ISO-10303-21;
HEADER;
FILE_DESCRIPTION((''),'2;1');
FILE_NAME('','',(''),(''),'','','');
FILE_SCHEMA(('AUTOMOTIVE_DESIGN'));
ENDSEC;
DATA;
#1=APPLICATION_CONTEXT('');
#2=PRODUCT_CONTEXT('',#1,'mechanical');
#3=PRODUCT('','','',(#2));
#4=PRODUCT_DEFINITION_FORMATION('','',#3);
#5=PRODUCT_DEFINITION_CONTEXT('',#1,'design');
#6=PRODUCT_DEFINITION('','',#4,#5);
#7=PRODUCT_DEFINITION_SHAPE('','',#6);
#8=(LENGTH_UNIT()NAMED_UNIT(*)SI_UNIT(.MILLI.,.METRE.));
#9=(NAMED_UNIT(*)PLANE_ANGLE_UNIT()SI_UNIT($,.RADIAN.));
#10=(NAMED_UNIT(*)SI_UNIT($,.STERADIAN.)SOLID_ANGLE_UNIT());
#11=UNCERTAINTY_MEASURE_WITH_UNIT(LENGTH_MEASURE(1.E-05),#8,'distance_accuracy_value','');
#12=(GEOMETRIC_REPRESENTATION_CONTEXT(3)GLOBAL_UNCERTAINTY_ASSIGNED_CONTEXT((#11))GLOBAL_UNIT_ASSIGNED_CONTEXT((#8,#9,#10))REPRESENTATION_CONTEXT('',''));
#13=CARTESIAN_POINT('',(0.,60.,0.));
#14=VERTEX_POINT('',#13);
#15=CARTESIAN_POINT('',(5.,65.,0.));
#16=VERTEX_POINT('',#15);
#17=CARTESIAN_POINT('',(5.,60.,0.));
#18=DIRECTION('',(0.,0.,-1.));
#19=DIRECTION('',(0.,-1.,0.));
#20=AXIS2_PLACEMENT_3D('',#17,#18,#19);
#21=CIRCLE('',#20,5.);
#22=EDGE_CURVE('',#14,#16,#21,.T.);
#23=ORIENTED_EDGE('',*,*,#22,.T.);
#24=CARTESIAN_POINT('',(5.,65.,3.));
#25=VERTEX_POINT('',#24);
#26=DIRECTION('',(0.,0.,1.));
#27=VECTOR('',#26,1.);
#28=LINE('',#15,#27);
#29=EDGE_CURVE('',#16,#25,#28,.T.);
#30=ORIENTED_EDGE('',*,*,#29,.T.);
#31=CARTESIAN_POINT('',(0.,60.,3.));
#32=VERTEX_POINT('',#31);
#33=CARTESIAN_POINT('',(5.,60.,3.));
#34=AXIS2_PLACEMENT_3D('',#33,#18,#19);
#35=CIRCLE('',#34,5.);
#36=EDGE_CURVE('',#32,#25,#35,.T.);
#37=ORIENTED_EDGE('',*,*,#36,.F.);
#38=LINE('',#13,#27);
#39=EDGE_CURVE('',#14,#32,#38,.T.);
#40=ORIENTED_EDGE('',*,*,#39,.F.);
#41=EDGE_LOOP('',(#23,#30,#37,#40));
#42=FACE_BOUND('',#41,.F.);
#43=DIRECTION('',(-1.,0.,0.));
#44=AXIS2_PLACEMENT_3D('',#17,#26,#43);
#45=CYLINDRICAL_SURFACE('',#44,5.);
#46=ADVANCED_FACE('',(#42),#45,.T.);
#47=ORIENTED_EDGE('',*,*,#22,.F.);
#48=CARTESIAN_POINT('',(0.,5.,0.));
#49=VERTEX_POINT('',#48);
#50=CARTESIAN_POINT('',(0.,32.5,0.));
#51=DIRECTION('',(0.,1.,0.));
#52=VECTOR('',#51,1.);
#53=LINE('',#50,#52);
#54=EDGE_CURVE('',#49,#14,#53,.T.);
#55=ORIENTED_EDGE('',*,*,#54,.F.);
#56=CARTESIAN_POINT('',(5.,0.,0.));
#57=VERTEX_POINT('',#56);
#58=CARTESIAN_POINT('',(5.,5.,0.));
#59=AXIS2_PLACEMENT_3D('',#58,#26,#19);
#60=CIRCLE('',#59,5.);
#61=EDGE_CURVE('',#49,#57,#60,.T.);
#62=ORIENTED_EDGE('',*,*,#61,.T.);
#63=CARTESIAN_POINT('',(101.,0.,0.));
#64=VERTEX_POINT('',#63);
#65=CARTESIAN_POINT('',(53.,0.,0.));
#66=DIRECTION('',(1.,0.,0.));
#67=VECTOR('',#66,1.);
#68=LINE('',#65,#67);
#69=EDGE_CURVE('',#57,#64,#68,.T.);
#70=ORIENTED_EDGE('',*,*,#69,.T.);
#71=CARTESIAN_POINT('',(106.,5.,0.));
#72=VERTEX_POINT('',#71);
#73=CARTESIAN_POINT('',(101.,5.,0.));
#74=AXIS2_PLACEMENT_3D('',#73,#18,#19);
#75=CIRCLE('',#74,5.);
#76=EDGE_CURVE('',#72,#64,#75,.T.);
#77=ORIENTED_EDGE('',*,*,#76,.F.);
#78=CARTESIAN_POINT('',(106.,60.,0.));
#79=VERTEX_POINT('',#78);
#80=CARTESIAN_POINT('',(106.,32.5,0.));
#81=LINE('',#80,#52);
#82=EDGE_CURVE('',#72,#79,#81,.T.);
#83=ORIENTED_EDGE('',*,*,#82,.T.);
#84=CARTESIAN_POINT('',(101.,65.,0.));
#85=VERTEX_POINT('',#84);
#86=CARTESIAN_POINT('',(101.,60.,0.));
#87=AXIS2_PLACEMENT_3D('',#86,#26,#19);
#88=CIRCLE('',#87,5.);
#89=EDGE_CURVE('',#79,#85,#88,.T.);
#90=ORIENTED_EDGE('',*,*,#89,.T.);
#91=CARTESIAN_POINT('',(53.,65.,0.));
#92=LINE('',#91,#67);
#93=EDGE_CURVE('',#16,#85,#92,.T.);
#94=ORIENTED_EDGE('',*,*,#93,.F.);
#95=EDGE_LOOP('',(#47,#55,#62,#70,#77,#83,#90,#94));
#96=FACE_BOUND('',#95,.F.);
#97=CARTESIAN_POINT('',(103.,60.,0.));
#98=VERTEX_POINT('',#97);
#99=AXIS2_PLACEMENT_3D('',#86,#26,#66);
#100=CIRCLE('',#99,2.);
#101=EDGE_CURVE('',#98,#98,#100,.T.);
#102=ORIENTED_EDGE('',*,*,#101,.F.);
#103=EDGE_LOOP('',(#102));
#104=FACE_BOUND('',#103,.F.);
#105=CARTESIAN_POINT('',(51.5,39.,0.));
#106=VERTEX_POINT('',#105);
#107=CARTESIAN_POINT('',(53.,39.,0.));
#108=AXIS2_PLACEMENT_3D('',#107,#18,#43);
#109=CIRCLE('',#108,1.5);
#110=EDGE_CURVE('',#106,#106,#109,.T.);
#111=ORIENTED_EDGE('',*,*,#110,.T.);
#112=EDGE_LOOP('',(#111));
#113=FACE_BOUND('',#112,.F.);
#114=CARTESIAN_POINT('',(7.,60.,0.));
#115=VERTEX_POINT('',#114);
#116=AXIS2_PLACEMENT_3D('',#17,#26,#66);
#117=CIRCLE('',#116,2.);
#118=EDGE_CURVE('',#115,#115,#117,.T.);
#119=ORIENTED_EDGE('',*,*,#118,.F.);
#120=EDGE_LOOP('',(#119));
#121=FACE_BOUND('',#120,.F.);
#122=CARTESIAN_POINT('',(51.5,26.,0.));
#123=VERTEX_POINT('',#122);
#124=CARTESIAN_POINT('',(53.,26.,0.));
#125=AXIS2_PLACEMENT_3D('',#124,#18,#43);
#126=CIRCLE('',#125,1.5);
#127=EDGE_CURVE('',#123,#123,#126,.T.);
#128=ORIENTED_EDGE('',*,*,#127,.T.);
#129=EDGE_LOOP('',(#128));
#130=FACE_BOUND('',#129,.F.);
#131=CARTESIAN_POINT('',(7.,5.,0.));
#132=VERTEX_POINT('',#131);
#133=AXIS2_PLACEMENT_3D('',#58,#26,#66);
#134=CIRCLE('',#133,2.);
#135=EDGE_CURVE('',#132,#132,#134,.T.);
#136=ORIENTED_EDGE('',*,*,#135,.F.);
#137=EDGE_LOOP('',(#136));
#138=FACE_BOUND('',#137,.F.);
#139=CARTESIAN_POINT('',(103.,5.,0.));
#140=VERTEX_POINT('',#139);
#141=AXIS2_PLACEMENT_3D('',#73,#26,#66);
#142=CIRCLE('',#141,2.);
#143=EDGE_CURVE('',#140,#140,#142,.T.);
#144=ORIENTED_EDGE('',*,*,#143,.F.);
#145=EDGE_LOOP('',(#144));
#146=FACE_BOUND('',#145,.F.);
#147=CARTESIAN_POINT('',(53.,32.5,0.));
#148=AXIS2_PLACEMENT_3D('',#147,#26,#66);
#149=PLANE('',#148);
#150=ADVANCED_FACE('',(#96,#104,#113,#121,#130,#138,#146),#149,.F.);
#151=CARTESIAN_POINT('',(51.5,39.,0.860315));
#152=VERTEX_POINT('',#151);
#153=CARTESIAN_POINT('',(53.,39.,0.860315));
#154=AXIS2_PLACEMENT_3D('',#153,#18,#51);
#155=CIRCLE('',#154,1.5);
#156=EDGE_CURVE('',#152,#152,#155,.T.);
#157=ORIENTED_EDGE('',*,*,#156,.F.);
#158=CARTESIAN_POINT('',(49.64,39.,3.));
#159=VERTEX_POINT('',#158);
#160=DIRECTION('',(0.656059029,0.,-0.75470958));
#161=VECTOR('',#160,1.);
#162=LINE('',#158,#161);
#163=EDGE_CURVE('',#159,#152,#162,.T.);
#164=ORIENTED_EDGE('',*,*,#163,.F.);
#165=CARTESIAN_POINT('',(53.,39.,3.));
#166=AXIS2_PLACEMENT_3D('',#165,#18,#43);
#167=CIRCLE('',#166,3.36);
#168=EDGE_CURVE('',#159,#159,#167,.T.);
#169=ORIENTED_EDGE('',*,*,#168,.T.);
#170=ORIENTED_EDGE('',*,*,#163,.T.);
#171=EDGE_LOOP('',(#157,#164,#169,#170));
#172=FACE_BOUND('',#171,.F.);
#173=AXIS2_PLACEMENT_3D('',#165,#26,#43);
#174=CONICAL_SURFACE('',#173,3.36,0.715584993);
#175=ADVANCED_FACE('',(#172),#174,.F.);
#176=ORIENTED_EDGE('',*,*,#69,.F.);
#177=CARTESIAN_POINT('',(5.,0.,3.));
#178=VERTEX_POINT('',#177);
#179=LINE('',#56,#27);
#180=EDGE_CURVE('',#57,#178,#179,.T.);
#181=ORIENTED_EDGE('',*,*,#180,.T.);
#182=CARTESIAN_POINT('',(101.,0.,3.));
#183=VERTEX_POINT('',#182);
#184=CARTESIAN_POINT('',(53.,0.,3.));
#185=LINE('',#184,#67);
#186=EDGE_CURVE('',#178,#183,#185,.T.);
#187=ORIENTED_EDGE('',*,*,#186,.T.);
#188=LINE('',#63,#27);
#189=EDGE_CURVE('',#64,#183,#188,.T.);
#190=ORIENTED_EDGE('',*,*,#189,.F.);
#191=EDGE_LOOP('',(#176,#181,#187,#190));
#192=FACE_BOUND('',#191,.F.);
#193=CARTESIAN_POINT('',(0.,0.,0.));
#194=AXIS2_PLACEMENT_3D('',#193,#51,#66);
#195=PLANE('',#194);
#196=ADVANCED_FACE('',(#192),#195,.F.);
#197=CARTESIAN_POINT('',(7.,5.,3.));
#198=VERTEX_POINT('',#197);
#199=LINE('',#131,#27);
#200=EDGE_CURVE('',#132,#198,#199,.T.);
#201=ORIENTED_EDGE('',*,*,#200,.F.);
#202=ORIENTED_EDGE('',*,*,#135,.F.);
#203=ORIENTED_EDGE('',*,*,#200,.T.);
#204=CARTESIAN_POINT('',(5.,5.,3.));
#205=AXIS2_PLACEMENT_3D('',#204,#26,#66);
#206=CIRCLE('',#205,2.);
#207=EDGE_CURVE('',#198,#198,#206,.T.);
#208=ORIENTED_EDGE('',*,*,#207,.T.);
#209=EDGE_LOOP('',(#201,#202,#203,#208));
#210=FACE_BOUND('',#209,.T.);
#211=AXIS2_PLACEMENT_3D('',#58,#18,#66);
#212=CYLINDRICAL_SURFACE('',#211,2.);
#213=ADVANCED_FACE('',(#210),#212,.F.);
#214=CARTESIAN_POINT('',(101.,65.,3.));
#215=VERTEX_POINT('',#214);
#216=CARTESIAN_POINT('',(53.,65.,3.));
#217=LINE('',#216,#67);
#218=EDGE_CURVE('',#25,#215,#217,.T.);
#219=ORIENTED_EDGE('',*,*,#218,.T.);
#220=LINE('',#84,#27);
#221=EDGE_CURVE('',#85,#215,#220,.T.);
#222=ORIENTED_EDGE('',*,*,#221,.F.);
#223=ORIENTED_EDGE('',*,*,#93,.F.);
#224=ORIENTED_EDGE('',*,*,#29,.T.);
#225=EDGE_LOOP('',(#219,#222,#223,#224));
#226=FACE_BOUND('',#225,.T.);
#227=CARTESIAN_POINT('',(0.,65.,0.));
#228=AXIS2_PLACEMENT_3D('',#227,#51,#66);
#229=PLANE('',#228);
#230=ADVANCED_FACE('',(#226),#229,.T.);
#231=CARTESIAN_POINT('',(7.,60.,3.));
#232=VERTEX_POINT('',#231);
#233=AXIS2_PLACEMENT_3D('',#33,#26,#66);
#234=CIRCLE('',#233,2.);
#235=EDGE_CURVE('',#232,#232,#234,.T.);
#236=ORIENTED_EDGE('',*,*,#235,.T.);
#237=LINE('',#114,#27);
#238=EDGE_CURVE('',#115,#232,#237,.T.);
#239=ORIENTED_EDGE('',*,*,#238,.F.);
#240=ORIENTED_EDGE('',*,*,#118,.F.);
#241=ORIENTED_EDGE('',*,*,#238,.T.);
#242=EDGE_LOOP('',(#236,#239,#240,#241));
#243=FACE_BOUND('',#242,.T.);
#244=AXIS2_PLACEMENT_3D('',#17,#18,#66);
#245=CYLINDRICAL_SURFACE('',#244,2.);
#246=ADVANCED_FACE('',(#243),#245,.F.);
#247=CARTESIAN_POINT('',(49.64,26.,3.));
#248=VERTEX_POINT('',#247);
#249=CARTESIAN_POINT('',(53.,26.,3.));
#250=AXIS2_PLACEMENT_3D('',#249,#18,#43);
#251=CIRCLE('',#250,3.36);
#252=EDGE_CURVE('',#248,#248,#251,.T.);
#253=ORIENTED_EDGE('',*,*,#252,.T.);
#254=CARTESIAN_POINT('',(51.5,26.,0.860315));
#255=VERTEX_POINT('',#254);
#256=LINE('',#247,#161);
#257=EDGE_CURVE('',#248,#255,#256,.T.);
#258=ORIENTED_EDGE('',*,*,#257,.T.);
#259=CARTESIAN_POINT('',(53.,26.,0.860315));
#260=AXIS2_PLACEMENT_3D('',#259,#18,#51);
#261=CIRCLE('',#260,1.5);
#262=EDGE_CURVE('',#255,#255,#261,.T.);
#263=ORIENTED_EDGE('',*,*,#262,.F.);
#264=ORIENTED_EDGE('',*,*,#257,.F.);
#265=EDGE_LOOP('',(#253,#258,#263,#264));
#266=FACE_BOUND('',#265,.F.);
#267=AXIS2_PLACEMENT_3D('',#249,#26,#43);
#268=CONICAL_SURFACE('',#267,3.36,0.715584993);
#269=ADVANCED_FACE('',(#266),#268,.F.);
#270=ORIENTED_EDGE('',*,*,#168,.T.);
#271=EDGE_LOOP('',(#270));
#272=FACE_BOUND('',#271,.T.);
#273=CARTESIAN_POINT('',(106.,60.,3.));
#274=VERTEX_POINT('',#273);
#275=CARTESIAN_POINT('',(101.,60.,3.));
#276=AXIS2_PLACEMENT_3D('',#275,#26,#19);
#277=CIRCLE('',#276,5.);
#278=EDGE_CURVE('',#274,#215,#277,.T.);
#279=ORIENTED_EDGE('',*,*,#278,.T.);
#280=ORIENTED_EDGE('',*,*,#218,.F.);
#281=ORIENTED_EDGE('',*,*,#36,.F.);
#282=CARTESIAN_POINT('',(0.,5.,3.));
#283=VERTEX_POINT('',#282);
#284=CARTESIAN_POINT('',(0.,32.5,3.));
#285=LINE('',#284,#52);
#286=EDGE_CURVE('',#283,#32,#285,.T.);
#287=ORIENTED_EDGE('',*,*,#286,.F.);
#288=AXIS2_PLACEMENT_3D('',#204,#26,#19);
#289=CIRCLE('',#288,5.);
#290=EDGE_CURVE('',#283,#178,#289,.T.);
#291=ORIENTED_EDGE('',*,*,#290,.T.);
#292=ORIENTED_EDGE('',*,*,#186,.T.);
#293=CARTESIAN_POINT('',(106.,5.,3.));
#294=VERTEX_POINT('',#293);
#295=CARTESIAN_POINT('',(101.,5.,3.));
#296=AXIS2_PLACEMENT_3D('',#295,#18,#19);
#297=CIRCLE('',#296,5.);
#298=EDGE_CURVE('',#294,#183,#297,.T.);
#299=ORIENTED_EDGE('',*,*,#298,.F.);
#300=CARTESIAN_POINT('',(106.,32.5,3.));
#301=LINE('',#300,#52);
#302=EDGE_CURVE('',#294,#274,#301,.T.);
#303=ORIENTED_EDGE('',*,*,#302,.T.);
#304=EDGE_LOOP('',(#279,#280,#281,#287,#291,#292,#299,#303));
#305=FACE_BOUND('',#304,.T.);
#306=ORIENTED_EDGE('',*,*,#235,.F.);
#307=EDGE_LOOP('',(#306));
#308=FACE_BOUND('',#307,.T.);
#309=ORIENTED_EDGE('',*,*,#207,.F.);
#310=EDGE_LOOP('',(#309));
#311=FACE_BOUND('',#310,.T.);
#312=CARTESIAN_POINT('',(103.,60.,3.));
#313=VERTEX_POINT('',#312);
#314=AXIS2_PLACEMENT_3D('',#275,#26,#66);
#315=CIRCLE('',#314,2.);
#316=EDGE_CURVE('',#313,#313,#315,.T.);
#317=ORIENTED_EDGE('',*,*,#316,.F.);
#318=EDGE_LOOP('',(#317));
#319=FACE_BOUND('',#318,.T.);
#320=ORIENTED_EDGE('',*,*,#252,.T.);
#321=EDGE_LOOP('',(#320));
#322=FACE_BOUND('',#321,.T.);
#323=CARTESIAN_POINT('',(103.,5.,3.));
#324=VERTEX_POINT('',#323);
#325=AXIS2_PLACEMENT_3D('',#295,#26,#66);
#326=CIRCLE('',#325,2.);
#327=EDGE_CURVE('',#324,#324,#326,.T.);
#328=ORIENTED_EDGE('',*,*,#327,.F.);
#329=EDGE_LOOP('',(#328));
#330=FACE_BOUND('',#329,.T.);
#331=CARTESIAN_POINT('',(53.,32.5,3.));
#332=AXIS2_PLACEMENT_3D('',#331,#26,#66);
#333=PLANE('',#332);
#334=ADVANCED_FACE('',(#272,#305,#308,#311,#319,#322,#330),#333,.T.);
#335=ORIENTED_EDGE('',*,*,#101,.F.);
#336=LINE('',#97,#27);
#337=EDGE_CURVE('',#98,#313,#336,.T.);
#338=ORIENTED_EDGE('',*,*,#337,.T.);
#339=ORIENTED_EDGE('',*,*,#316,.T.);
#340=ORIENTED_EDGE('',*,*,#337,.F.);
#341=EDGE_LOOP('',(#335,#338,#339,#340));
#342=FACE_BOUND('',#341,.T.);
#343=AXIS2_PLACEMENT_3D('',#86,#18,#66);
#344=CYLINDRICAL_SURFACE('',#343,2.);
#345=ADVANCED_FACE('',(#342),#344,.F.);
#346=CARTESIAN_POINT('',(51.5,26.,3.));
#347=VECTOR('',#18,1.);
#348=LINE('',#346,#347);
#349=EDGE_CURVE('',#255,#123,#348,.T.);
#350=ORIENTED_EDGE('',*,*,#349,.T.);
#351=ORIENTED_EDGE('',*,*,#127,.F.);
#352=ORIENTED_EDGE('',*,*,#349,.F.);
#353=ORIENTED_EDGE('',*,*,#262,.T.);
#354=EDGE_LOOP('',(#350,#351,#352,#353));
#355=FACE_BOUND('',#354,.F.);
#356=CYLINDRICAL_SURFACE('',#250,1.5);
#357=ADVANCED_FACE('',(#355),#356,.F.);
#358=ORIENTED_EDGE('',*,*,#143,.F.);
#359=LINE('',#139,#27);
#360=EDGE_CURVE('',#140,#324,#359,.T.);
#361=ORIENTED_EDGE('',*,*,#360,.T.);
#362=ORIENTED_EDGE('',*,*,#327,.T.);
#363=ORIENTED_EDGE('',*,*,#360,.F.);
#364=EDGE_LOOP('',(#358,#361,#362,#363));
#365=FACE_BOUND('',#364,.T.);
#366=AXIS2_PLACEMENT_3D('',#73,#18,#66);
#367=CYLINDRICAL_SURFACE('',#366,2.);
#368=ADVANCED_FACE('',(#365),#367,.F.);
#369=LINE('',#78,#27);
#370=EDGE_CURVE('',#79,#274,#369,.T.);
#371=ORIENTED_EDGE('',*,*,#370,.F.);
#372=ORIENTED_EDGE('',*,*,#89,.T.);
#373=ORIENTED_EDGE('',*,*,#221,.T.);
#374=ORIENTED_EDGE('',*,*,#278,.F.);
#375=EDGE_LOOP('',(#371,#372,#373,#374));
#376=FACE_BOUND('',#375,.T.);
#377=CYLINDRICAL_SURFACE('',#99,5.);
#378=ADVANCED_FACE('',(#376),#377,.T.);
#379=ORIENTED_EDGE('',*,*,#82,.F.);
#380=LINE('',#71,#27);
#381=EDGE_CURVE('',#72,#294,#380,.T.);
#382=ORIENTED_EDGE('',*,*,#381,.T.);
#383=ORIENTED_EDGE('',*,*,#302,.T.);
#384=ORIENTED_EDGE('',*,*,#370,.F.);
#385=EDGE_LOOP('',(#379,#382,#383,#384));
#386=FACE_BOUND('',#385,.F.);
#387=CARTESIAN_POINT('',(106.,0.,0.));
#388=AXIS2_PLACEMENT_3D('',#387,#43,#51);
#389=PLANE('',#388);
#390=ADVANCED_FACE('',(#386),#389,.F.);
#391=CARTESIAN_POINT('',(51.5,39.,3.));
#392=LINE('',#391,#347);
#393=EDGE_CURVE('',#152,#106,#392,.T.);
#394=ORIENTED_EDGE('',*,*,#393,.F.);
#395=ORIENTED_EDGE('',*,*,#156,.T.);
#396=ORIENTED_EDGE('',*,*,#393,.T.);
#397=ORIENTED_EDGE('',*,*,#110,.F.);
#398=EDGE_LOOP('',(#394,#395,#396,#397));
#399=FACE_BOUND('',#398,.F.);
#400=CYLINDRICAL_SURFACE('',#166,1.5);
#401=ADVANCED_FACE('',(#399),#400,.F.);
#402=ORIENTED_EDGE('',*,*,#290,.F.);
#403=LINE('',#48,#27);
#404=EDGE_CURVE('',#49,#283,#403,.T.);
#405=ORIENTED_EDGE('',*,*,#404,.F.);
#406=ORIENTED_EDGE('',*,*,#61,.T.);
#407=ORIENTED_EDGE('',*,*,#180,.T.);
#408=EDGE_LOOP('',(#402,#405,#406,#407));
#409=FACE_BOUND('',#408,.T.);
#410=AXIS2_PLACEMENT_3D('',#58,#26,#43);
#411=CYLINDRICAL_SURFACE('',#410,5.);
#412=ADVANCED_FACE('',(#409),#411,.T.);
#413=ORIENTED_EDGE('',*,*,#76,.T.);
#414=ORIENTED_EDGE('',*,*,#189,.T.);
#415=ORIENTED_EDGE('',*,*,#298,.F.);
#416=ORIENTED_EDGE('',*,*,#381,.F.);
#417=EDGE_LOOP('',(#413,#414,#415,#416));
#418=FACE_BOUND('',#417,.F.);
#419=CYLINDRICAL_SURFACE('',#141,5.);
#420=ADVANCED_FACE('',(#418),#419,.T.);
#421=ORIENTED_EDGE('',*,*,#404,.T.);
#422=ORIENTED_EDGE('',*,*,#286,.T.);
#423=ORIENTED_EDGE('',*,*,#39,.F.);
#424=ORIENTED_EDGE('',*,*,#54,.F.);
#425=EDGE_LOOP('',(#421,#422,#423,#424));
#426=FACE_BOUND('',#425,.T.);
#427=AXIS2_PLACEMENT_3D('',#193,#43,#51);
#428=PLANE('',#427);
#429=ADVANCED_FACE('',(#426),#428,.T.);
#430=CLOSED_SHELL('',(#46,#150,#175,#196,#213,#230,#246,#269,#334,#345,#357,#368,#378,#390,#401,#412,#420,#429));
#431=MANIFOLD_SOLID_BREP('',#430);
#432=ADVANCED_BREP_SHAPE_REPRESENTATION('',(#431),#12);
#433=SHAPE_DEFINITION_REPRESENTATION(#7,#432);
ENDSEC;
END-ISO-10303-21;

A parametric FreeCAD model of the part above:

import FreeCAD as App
import Part
import Sketcher

V = App.Vector


def edges_at(feature, points):
    """Names of the edges that pass closest to the given points."""
    edges = feature.Shape.Edges
    near = lambda p: min(range(len(edges)), key=lambda i: edges[i].distToShape(Part.Vertex(*p))[0])
    return sorted({f"Edge{near(p) + 1}" for p in points})


def add_polygon(sketch, points):
    """Adds a closed chain of lines whose ends are joined by coincident constraints."""
    first, n = sketch.GeometryCount, len(points)
    for a, b in zip(points, points[1:] + points[:1]):
        sketch.addGeometry(Part.LineSegment(App.Vector(*a, 0), App.Vector(*b, 0)), False)
    for i in range(n):
        sketch.addConstraint(Sketcher.Constraint("Coincident", first + i, 2, first + (i + 1) % n, 1))

doc = App.newDocument("Part")
params = doc.addObject("Spreadsheet::Sheet", "Params")
for row, (alias, value) in enumerate([
    ("sketch1_diameter", "4 mm"),
    ("sketch1_width", "106 mm"),
    ("sketch1_height", "65 mm"),
    ("pad1_length", "3 mm"),
    ("sketch2_diameter", "3 mm"),
    ("hole_diameter", "3 mm"),
    ("hole_csink_diameter", "6.72 mm"),
    ("fillet_radius", "5 mm"),
], start=1):
    params.set(f"A{row}", alias)
    params.set(f"B{row}", "=" + value)
    params.setAlias(f"B{row}", alias)

body = doc.addObject("PartDesign::Body", "Body")

sketch1 = body.newObject("Sketcher::SketchObject", "Sketch")
sketch1.AttachmentSupport = (doc.getObject("XY_Plane"), [""])
sketch1.MapMode = "FlatFace"
add_polygon(sketch1, [(0, 65), (0, 0), (106, 0), (106, 65)])
sketch1.addGeometry(Part.Circle(V(5, 5, 0), V(0, 0, 1), 2), False)
sketch1.addGeometry(Part.Circle(V(101, 5, 0), V(0, 0, 1), 2), False)
sketch1.addGeometry(Part.Circle(V(5, 60, 0), V(0, 0, 1), 2), False)
sketch1.addGeometry(Part.Circle(V(101, 60, 0), V(0, 0, 1), 2), False)
sketch1.addConstraint(Sketcher.Constraint("Vertical", 0))
sketch1.addConstraint(Sketcher.Constraint("Horizontal", 1))
sketch1.addConstraint(Sketcher.Constraint("Vertical", 2))
sketch1.addConstraint(Sketcher.Constraint("Horizontal", 3))
sketch1.addConstraint(Sketcher.Constraint("Coincident", 0, 2, -1, 1))
sketch1.addConstraint(Sketcher.Constraint("Equal", 4, 5))
sketch1.addConstraint(Sketcher.Constraint("Equal", 5, 6))
sketch1.addConstraint(Sketcher.Constraint("Equal", 6, 7))
sketch1.addConstraint(Sketcher.Constraint("Horizontal", 4, 3, 5, 3))
sketch1.addConstraint(Sketcher.Constraint("Horizontal", 6, 3, 7, 3))
sketch1.addConstraint(Sketcher.Constraint("Vertical", 4, 3, 6, 3))
sketch1.addConstraint(Sketcher.Constraint("Vertical", 5, 3, 7, 3))
sketch1.addConstraint(Sketcher.Constraint("Diameter", 4, 4.0))
sketch1.addConstraint(Sketcher.Constraint("DistanceX", 1, 1, 1, 2, 106.0))
sketch1.addConstraint(Sketcher.Constraint("DistanceY", 0, 2, 0, 1, 65.0))
sketch1.addConstraint(Sketcher.Constraint("DistanceX", -1, 1, 4, 3, 5.0))
sketch1.addConstraint(Sketcher.Constraint("DistanceY", -1, 1, 4, 3, 5.0))
sketch1.addConstraint(Sketcher.Constraint("DistanceX", -1, 1, 5, 3, 101.0))
sketch1.addConstraint(Sketcher.Constraint("DistanceY", -1, 1, 6, 3, 60.0))
sketch1.setExpression("Constraints[16]", "Params.sketch1_diameter")
sketch1.setExpression("Constraints[17]", "Params.sketch1_width")
sketch1.setExpression("Constraints[18]", "Params.sketch1_height")
pad1 = body.newObject("PartDesign::Pad", "Pad")
pad1.Profile = sketch1
pad1.setExpression("Length", "Params.pad1_length")

sketch2 = body.newObject("Sketcher::SketchObject", "Sketch001")
sketch2.AttachmentSupport = (doc.getObject("XY_Plane"), [""])
sketch2.MapMode = "FlatFace"
sketch2.AttachmentOffset = App.Placement(V(0, 0, 3), App.Rotation())
sketch2.addGeometry(Part.Circle(V(53, 39, 0), V(0, 0, 1), 1.5), False)
sketch2.addGeometry(Part.Circle(V(53, 26, 0), V(0, 0, 1), 1.5), False)
sketch2.addConstraint(Sketcher.Constraint("Equal", 0, 1))
sketch2.addConstraint(Sketcher.Constraint("Vertical", 0, 3, 1, 3))
sketch2.addConstraint(Sketcher.Constraint("Diameter", 0, 3.0))
sketch2.addConstraint(Sketcher.Constraint("DistanceX", -1, 1, 0, 3, 53.0))
sketch2.addConstraint(Sketcher.Constraint("DistanceY", -1, 1, 0, 3, 39.0))
sketch2.addConstraint(Sketcher.Constraint("DistanceY", -1, 1, 1, 3, 26.0))
sketch2.setExpression("Constraints[2]", "Params.sketch2_diameter")
doc.recompute()
hole = body.newObject("PartDesign::Hole", "Hole")
hole.Profile = sketch2
hole.ThreadType = "None"
hole.setExpression("Diameter", "Params.hole_diameter")
hole.DepthType = "ThroughAll"
hole.HoleCutType = "Countersink"
hole.setExpression("HoleCutDiameter", "Params.hole_csink_diameter")
hole.HoleCutCountersinkAngle = 82
doc.recompute()

fillet = body.newObject("PartDesign::Fillet", "Fillet")
fillet.Base = (hole, edges_at(hole, [
    (106, 0, 1.5),
    (0, 0, 1.5),
    (0, 65, 1.5),
    (106, 65, 1.5),
]))
fillet.setExpression("Radius", "Params.fillet_radius")

doc.recompute()
